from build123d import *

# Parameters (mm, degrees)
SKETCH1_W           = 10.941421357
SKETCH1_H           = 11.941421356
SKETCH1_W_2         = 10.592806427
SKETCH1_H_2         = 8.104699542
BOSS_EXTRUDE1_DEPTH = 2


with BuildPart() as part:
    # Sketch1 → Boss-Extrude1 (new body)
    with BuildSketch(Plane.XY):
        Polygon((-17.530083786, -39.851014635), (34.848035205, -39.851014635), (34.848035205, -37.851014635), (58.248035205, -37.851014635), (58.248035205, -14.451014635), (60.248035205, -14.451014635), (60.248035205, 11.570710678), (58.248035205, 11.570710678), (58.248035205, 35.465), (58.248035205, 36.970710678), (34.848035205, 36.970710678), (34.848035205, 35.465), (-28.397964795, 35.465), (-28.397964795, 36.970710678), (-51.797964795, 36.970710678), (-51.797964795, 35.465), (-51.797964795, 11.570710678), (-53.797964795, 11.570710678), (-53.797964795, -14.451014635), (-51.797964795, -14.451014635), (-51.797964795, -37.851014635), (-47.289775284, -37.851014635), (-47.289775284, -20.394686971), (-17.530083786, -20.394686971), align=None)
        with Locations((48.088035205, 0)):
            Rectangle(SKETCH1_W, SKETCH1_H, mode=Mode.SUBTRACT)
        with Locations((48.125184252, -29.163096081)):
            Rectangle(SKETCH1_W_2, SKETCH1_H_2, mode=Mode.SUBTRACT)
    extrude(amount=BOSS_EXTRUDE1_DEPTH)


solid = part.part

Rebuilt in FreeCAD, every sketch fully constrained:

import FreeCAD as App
import Part
import Sketcher

V = App.Vector

doc = App.newDocument("Part")
params = doc.addObject("Spreadsheet::Sheet", "Params")
for row, (alias, value) in enumerate([
    ("sketch1_width", "2 mm"),
    ("sketch1_width2", "23.4 mm"),
    ("sketch1_height", "25.4 mm"),
    ("pad1_length", "2 mm"),
], start=1):
    params.set(f"A{row}", alias)
    params.set(f"B{row}", "=" + value)
    params.setAlias(f"B{row}", alias)

body = doc.addObject("PartDesign::Body", "Body")

# Sketch on XY plane
sketch1 = body.newObject("Sketcher::SketchObject", "Sketch")
sketch1.AttachmentSupport = (doc.getObject("XY_Plane"), [""])
sketch1.MapMode = "FlatFace"
sketch1.addGeometry([
    Part.LineSegment(V(-17.5, -39.9, 0), V(34.8, -39.9, 0)),  # 0
    Part.LineSegment(V(34.8, -39.9, 0), V(34.8, -37.9, 0)),  # 1
    Part.LineSegment(V(34.8, -37.9, 0), V(58.2, -37.9, 0)),  # 2
    Part.LineSegment(V(58.2, -37.9, 0), V(58.2, -14.5, 0)),  # 3
    Part.LineSegment(V(58.2, -14.5, 0), V(60.2, -14.5, 0)),  # 4
    Part.LineSegment(V(60.2, -14.5, 0), V(60.2, 11.6, 0)),  # 5
    Part.LineSegment(V(60.2, 11.6, 0), V(58.2, 11.6, 0)),  # 6
    Part.LineSegment(V(58.2, 11.6, 0), V(58.2, 37, 0)),  # 7
    Part.LineSegment(V(58.2, 37, 0), V(34.8, 37, 0)),  # 8
    Part.LineSegment(V(34.8, 37, 0), V(34.8, 35.5, 0)),  # 9
    Part.LineSegment(V(34.8, 35.5, 0), V(-28.4, 35.5, 0)),  # 10
    Part.LineSegment(V(-28.4, 35.5, 0), V(-28.4, 37, 0)),  # 11
    Part.LineSegment(V(-28.4, 37, 0), V(-51.8, 37, 0)),  # 12
    Part.LineSegment(V(-51.8, 37, 0), V(-51.8, 11.6, 0)),  # 13
    Part.LineSegment(V(-51.8, 11.6, 0), V(-53.8, 11.6, 0)),  # 14
    Part.LineSegment(V(-53.8, 11.6, 0), V(-53.8, -14.5, 0)),  # 15
    Part.LineSegment(V(-53.8, -14.5, 0), V(-51.8, -14.5, 0)),  # 16
    Part.LineSegment(V(-51.8, -14.5, 0), V(-51.8, -37.9, 0)),  # 17
    Part.LineSegment(V(-51.8, -37.9, 0), V(-47.3, -37.9, 0)),  # 18
    Part.LineSegment(V(-47.3, -37.9, 0), V(-47.3, -20.4, 0)),  # 19
    Part.LineSegment(V(-47.3, -20.4, 0), V(-17.5, -20.4, 0)),  # 20
    Part.LineSegment(V(-17.5, -20.4, 0), V(-17.5, -39.9, 0)),  # 21
    Part.LineSegment(V(53.4, -33.2, 0), V(42.8, -33.2, 0)),  # 22
    Part.LineSegment(V(42.8, -33.2, 0), V(42.8, -25.1, 0)),  # 23
    Part.LineSegment(V(42.8, -25.1, 0), V(53.4, -25.1, 0)),  # 24
    Part.LineSegment(V(53.4, -25.1, 0), V(53.4, -33.2, 0)),  # 25
    Part.LineSegment(V(53.6, -6, 0), V(42.6, -6, 0)),  # 26
    Part.LineSegment(V(42.6, -6, 0), V(42.6, 6, 0)),  # 27
    Part.LineSegment(V(42.6, 6, 0), V(53.6, 6, 0)),  # 28
    Part.LineSegment(V(53.6, 6, 0), V(53.6, -6, 0)),  # 29
], False)
sketch1.addConstraint([
    Sketcher.Constraint("Coincident", 0, 2, 1, 1),
    Sketcher.Constraint("Coincident", 1, 2, 2, 1),
    Sketcher.Constraint("Coincident", 2, 2, 3, 1),
    Sketcher.Constraint("Coincident", 3, 2, 4, 1),
    Sketcher.Constraint("Coincident", 4, 2, 5, 1),
    Sketcher.Constraint("Coincident", 5, 2, 6, 1),
    Sketcher.Constraint("Coincident", 6, 2, 7, 1),
    Sketcher.Constraint("Coincident", 7, 2, 8, 1),
    Sketcher.Constraint("Coincident", 8, 2, 9, 1),
    Sketcher.Constraint("Coincident", 9, 2, 10, 1),
    Sketcher.Constraint("Coincident", 10, 2, 11, 1),
    Sketcher.Constraint("Coincident", 11, 2, 12, 1),
    Sketcher.Constraint("Coincident", 12, 2, 13, 1),
    Sketcher.Constraint("Coincident", 13, 2, 14, 1),
    Sketcher.Constraint("Coincident", 14, 2, 15, 1),
    Sketcher.Constraint("Coincident", 15, 2, 16, 1),
    Sketcher.Constraint("Coincident", 16, 2, 17, 1),
    Sketcher.Constraint("Coincident", 17, 2, 18, 1),
    Sketcher.Constraint("Coincident", 18, 2, 19, 1),
    Sketcher.Constraint("Coincident", 19, 2, 20, 1),
    Sketcher.Constraint("Coincident", 20, 2, 21, 1),
    Sketcher.Constraint("Coincident", 21, 2, 0, 1),
    Sketcher.Constraint("Coincident", 22, 2, 23, 1),
    Sketcher.Constraint("Coincident", 23, 2, 24, 1),
    Sketcher.Constraint("Coincident", 24, 2, 25, 1),
    Sketcher.Constraint("Coincident", 25, 2, 22, 1),
    Sketcher.Constraint("Coincident", 26, 2, 27, 1),
    Sketcher.Constraint("Coincident", 27, 2, 28, 1),
    Sketcher.Constraint("Coincident", 28, 2, 29, 1),
    Sketcher.Constraint("Coincident", 29, 2, 26, 1),
    Sketcher.Constraint("Horizontal", 0),
    Sketcher.Constraint("Vertical", 1),
    Sketcher.Constraint("Horizontal", 2),
    Sketcher.Constraint("Vertical", 3),
    Sketcher.Constraint("Horizontal", 4),
    Sketcher.Constraint("Vertical", 5),
    Sketcher.Constraint("Horizontal", 6),
    Sketcher.Constraint("Vertical", 7),
    Sketcher.Constraint("Horizontal", 8),
    Sketcher.Constraint("Vertical", 9),
    Sketcher.Constraint("Horizontal", 10),
    Sketcher.Constraint("Vertical", 11),
    Sketcher.Constraint("Horizontal", 12),
    Sketcher.Constraint("Vertical", 13),
    Sketcher.Constraint("Horizontal", 14),
    Sketcher.Constraint("Vertical", 15),
    Sketcher.Constraint("Horizontal", 16),
    Sketcher.Constraint("Vertical", 17),
    Sketcher.Constraint("Horizontal", 18),
    Sketcher.Constraint("Vertical", 19),
    Sketcher.Constraint("Horizontal", 20),
    Sketcher.Constraint("Vertical", 21),
    Sketcher.Constraint("Horizontal", 22),
    Sketcher.Constraint("Vertical", 23),
    Sketcher.Constraint("Horizontal", 24),
    Sketcher.Constraint("Vertical", 25),
    Sketcher.Constraint("Horizontal", 26),
    Sketcher.Constraint("Vertical", 27),
    Sketcher.Constraint("Horizontal", 28),
    Sketcher.Constraint("Vertical", 29),
    Sketcher.Constraint("Horizontal", 8, 2, 11, 2),
    Sketcher.Constraint("Horizontal", 6, 2, 13, 2),
    Sketcher.Constraint("Horizontal", 4, 2, 15, 2),
    Sketcher.Constraint("Horizontal", 2, 2, 17, 2),
    Sketcher.Constraint("Vertical", 3, 2, 6, 2),
    Sketcher.Constraint("Vertical", 1, 2, 8, 2),
    Sketcher.Constraint("Vertical", 13, 2, 16, 2),
    Sketcher.Constraint("Equal", 8, 12),
    Sketcher.Constraint("Equal", 6, 14),
    Sketcher.Constraint("Equal", 16, 1),
    Sketcher.Constraint("Equal", 12, 3),
    Sketcher.Constraint("DistanceX", 4, 1, 4, 2, 2.0),
    Sketcher.Constraint("DistanceX", 2, 1, 2, 2, 23.4),
    Sketcher.Constraint("DistanceY", 7, 1, 7, 2, 25.4),
    Sketcher.Constraint("DistanceY", 27, 2, 6, 2, 5.6),
    Sketcher.Constraint("DistanceX", 10, 2, 10, 1, 63.246),
    Sketcher.Constraint("DistanceY", 23, 1, 23, 2, 8.1047),
    Sketcher.Constraint("DistanceY", -1, 1, 9, 2, 35.465),
    Sketcher.Constraint("DistanceX", 0, 1, 0, 2, 52.378119),
    Sketcher.Constraint("DistanceX", 18, 1, 18, 2, 4.50819),
    Sketcher.Constraint("DistanceX", 26, 2, 26, 1, 10.941421),
    Sketcher.Constraint("DistanceY", 9, 2, 9, 1, 1.505711),
    Sketcher.Constraint("DistanceY", 27, 1, 27, 2, 11.941421),
    Sketcher.Constraint("DistanceX", 22, 2, 22, 1, 10.592806),
    Sketcher.Constraint("DistanceY", 5, 1, 5, 2, 26.021725),
    Sketcher.Constraint("DistanceY", 19, 1, 19, 2, 17.456328),
    Sketcher.Constraint("DistanceX", -1, 1, 22, 2, 42.828781),
    Sketcher.Constraint("DistanceY", 1, 2, 22, 2, 4.635569),
    Sketcher.Constraint("DistanceX", 26, 2, 3, 2, 15.630711),
    Sketcher.Constraint("DistanceX", -1, 1, 0, 2, 34.848035),
])
sketch1.setExpression("Constraints[71]", "Params.sketch1_width")
sketch1.setExpression("Constraints[72]", "Params.sketch1_width2")
sketch1.setExpression("Constraints[73]", "Params.sketch1_height")
pad1 = body.newObject("PartDesign::Pad", "Pad")
pad1.Profile = sketch1
pad1.setExpression("Length", "Params.pad1_length")

doc.recompute()
